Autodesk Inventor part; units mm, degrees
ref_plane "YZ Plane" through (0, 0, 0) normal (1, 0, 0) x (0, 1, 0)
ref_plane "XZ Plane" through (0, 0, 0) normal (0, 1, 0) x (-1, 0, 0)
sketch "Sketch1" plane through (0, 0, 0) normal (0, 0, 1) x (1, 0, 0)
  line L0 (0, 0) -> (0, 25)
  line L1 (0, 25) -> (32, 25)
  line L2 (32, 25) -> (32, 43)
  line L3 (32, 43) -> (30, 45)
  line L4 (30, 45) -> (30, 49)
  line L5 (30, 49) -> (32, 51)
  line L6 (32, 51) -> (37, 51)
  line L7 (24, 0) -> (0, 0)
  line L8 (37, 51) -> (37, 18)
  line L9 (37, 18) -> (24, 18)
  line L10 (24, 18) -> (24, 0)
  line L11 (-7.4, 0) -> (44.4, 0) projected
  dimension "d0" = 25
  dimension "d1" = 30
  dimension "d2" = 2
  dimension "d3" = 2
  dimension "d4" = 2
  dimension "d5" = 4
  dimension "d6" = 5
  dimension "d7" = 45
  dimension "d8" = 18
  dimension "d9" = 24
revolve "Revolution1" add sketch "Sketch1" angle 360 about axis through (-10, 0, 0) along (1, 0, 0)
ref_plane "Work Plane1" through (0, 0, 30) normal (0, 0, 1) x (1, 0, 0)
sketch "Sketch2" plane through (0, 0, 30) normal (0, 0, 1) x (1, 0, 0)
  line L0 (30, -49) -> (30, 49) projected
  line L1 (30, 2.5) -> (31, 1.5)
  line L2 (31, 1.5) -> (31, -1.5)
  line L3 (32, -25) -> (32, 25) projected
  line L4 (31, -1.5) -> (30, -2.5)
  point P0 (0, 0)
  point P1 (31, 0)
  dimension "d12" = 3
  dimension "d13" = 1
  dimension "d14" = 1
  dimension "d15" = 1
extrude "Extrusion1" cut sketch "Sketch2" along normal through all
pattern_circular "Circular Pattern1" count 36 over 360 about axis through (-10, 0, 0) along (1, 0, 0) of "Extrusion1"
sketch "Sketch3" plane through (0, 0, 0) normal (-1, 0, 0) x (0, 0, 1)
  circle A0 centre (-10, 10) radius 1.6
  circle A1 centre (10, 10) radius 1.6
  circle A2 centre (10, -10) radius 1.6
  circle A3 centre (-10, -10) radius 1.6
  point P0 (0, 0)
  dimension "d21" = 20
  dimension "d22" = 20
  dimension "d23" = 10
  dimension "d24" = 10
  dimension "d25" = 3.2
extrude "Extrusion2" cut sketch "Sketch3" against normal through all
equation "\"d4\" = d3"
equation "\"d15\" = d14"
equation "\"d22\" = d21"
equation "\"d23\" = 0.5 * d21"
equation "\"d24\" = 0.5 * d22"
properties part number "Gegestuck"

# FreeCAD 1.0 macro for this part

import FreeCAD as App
import Part
import Sketcher

V = App.Vector
Q = App.Units.Quantity

doc = App.newDocument("Part")
body = doc.addObject("PartDesign::Body", "Body")

sketch1 = body.newObject("Sketcher::SketchObject", "Sketch")
sketch1.AttachmentSupport = (doc.getObject("XY_Plane"), [""])
sketch1.MapMode = "FlatFace"
sketch1.addGeometry([
    Part.LineSegment(V(0, 25, 0), V(0, 0, 0)),
    Part.LineSegment(V(0, 0, 0), V(24, 0, 0)),
    Part.LineSegment(V(24, 0, 0), V(24, 18, 0)),
    Part.LineSegment(V(24, 18, 0), V(37, 18, 0)),
    Part.LineSegment(V(37, 18, 0), V(37, 51, 0)),
    Part.LineSegment(V(37, 51, 0), V(32, 51, 0)),
    Part.LineSegment(V(32, 51, 0), V(30, 49, 0)),
    Part.LineSegment(V(30, 49, 0), V(30, 45, 0)),
    Part.LineSegment(V(30, 45, 0), V(32, 43, 0)),
    Part.LineSegment(V(32, 43, 0), V(32, 25, 0)),
    Part.LineSegment(V(32, 25, 0), V(0, 25, 0)),
], False)
sketch1.addConstraint([
    Sketcher.Constraint("Coincident", 0, 2, 1, 1),
    Sketcher.Constraint("Coincident", 1, 2, 2, 1),
    Sketcher.Constraint("Coincident", 2, 2, 3, 1),
    Sketcher.Constraint("Coincident", 3, 2, 4, 1),
    Sketcher.Constraint("Coincident", 4, 2, 5, 1),
    Sketcher.Constraint("Coincident", 5, 2, 6, 1),
    Sketcher.Constraint("Coincident", 6, 2, 7, 1),
    Sketcher.Constraint("Coincident", 7, 2, 8, 1),
    Sketcher.Constraint("Coincident", 8, 2, 9, 1),
    Sketcher.Constraint("Coincident", 9, 2, 10, 1),
    Sketcher.Constraint("Coincident", 10, 2, 0, 1),
    Sketcher.Constraint("Vertical", 0),
    Sketcher.Constraint("Horizontal", 1),
    Sketcher.Constraint("Vertical", 2),
    Sketcher.Constraint("Horizontal", 3),
    Sketcher.Constraint("Vertical", 4),
    Sketcher.Constraint("Horizontal", 5),
    Sketcher.Constraint("Vertical", 7),
    Sketcher.Constraint("Vertical", 9),
    Sketcher.Constraint("Horizontal", 10),
    Sketcher.Constraint("Coincident", 0, 2, -1, 1),
    Sketcher.Constraint("Perpendicular", 6, 8),
    Sketcher.Constraint("Vertical", 5, 2, 8, 2),
    Sketcher.Constraint("Equal", 2, 9),
    Sketcher.Constraint("Equal", 6, 8),
    Sketcher.Constraint("DistanceX", 1, 1, 1, 2, Q("24 mm")),
    Sketcher.Constraint("DistanceX", 5, 2, 5, 1, Q("5 mm")),
    Sketcher.Constraint("DistanceY", 0, 2, 0, 1, Q("25 mm")),
    Sketcher.Constraint("DistanceY", 2, 1, 2, 2, Q("18 mm")),
    Sketcher.Constraint("DistanceY", 7, 2, 7, 1, Q("4 mm")),
    Sketcher.Constraint("DistanceX", -1, 1, 6, 2, Q("30 mm")),
    Sketcher.Constraint("DistanceY", -1, 1, 7, 2, Q("45 mm")),
])
revolution = body.newObject("PartDesign::Revolution", "Revolution")
revolution.Profile = sketch1
revolution.ReferenceAxis = (sketch1, ["H_Axis"])
revolution.Angle = 360

sketch2 = body.newObject("Sketcher::SketchObject", "Sketch001")
sketch2.AttachmentSupport = (doc.getObject("XY_Plane"), [""])
sketch2.MapMode = "FlatFace"
sketch2.AttachmentOffset = App.Placement(V(0, 0, 30), App.Rotation())
sketch2.addGeometry([
    Part.LineSegment(V(30, 2.5, 0), V(30, -2.5, 0)),
    Part.LineSegment(V(30, -2.5, 0), V(31, -1.5, 0)),
    Part.LineSegment(V(31, -1.5, 0), V(31, 1.5, 0)),
    Part.LineSegment(V(31, 1.5, 0), V(30, 2.5, 0)),
], False)
sketch2.addConstraint([
    Sketcher.Constraint("Coincident", 0, 2, 1, 1),
    Sketcher.Constraint("Coincident", 1, 2, 2, 1),
    Sketcher.Constraint("Coincident", 2, 2, 3, 1),
    Sketcher.Constraint("Coincident", 3, 2, 0, 1),
    Sketcher.Constraint("Vertical", 0),
    Sketcher.Constraint("Vertical", 2),
    Sketcher.Constraint("Perpendicular", 1, 3),
    Sketcher.Constraint("Equal", 1, 3),
    Sketcher.Constraint("DistanceY", 2, 1, 2, 2, Q("3 mm")),
    Sketcher.Constraint("DistanceX", 0, 2, 1, 2, Q("1 mm")),
    Sketcher.Constraint("DistanceX", -1, 1, 0, 2, Q("30 mm")),
    Sketcher.Constraint("DistanceY", 0, 2, -1, 1, Q("2.5 mm")),
])
pocket1 = body.newObject("PartDesign::Pocket", "Pocket")
pocket1.Profile = sketch2
pocket1.Type = "ThroughAll"
pocket1.Reversed = True
doc.recompute()

polarpattern = body.newObject("PartDesign::PolarPattern", "PolarPattern")
polarpattern.Originals = [pocket1]
polarpattern.Axis = (doc.getObject("X_Axis"), [""])
polarpattern.Angle = 360
polarpattern.Occurrences = 36
body.Tip = polarpattern

sketch3 = body.newObject("Sketcher::SketchObject", "Sketch002")
sketch3.AttachmentSupport = (doc.getObject("YZ_Plane"), [""])
sketch3.MapMode = "FlatFace"
sketch3.addGeometry([
    Part.Circle(V(10, -10, 0), V(0, 0, 1), 1.6),
    Part.Circle(V(10, 10, 0), V(0, 0, 1), 1.6),
    Part.Circle(V(-10, 10, 0), V(0, 0, 1), 1.6),
    Part.Circle(V(-10, -10, 0), V(0, 0, 1), 1.6),
], False)
sketch3.addConstraint([
    Sketcher.Constraint("Equal", 0, 1),
    Sketcher.Constraint("Equal", 1, 2),
    Sketcher.Constraint("Equal", 2, 3),
    Sketcher.Constraint("Symmetric", 0, 3, 2, 3, -1, 1),
    Sketcher.Constraint("Symmetric", 1, 3, 3, 3, -1, 1),
    Sketcher.Constraint("Symmetric", 1, 3, 2, 3, -2),
    Sketcher.Constraint("Diameter", 0, Q("3.2 mm")),
    Sketcher.Constraint("DistanceX", -1, 1, 0, 3, Q("10 mm")),
    Sketcher.Constraint("DistanceY", 0, 3, -1, 1, Q("10 mm")),
])
pocket2 = body.newObject("PartDesign::Pocket", "Pocket001")
pocket2.Profile = sketch3
pocket2.Type = "ThroughAll"
pocket2.Reversed = True

doc.recompute()
